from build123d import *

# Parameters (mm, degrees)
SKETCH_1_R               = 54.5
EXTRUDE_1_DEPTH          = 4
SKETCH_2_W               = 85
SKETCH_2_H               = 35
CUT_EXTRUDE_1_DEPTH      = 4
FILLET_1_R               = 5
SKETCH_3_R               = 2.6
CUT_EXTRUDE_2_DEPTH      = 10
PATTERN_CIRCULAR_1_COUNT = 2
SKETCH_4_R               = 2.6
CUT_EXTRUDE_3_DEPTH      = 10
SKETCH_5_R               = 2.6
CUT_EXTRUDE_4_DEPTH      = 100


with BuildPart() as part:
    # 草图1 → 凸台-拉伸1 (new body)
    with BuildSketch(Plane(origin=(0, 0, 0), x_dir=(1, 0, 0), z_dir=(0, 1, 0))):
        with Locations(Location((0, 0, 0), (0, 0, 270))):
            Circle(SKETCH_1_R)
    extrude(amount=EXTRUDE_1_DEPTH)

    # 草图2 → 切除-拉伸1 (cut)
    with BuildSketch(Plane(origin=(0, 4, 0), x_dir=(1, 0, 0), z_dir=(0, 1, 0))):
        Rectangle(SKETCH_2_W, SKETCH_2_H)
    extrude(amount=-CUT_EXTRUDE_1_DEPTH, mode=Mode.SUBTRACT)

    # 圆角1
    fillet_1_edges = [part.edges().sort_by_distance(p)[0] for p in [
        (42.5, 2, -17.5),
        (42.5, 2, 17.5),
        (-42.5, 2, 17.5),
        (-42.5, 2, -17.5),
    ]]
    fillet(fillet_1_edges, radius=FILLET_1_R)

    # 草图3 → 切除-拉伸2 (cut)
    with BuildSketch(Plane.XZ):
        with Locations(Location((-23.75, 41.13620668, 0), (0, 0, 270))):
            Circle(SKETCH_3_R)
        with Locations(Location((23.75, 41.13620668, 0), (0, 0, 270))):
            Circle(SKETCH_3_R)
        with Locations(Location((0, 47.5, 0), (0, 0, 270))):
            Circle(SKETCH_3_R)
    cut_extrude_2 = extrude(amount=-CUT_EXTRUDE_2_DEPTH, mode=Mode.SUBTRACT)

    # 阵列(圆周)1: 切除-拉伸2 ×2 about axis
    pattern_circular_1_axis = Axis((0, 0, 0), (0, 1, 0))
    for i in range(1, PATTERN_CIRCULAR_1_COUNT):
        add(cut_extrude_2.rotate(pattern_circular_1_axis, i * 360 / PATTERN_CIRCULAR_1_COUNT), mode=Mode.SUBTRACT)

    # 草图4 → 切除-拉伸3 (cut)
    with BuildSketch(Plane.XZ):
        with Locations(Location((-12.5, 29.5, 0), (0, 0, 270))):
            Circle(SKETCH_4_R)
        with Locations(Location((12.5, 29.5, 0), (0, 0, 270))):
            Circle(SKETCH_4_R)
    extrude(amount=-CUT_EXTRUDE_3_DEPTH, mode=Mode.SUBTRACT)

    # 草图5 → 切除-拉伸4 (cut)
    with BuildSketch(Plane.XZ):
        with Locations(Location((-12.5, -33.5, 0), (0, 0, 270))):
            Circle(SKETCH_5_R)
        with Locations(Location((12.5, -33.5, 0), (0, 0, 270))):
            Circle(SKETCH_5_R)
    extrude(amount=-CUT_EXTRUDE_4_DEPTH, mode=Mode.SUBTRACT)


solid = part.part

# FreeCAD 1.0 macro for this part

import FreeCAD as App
import Part
import Sketcher

V = App.Vector


def edges_at(feature, points):
    """Names of the edges that pass closest to the given points."""
    edges = feature.Shape.Edges
    near = lambda p: min(range(len(edges)), key=lambda i: edges[i].distToShape(Part.Vertex(*p))[0])
    return sorted({f"Edge{near(p) + 1}" for p in points})

doc = App.newDocument("Part")
body = doc.addObject("PartDesign::Body", "Body")

# Sketch on XZ plane
sketch1 = doc.addObject("Sketcher::SketchObject", "Sketch")
body.addObject(sketch1)
sketch1.AttachmentSupport = (doc.XZ_Plane, [""])
sketch1.MapMode = "FlatFace"
sketch1.addGeometry(Part.Circle(V(0, 0, 0), V(0, 0, 1), 54), False)
sketch1.addConstraint([
    Sketcher.Constraint("Coincident", 0, 3, -1, 1),
    Sketcher.Constraint("Diameter", 0, 109.0),
])
pad1 = doc.addObject("PartDesign::Pad", "Pad")
body.addObject(pad1)
pad1.Profile = sketch1
pad1.Length = 4
pad1.Reversed = True

# Sketch on XZ plane
sketch2 = doc.addObject("Sketcher::SketchObject", "Sketch001")
body.addObject(sketch2)
sketch2.AttachmentSupport = (doc.XZ_Plane, [""])
sketch2.MapMode = "FlatFace"
sketch2.AttachmentOffset = App.Placement(V(0, 0, -4), App.Rotation())
sketch2.addGeometry([
    Part.LineSegment(V(-42, -18, 0), V(-42, 18, 0)),
    Part.LineSegment(V(-42, 18, 0), V(42, 18, 0)),
    Part.LineSegment(V(42, 18, 0), V(42, -18, 0)),
    Part.LineSegment(V(42, -18, 0), V(-42, -18, 0)),
], False)
sketch2.addConstraint([
    Sketcher.Constraint("Coincident", 0, 2, 1, 1),
    Sketcher.Constraint("Coincident", 1, 2, 2, 1),
    Sketcher.Constraint("Coincident", 2, 2, 3, 1),
    Sketcher.Constraint("Coincident", 3, 2, 0, 1),
    Sketcher.Constraint("Vertical", 0),
    Sketcher.Constraint("Horizontal", 1),
    Sketcher.Constraint("Vertical", 2),
    Sketcher.Constraint("Horizontal", 3),
    Sketcher.Constraint("Symmetric", 0, 2, 2, 2, -1, 1),
    Sketcher.Constraint("DistanceX", 1, 1, 1, 2, 85.0),
    Sketcher.Constraint("DistanceY", 0, 1, 0, 2, 35.0),
])
pocket1 = doc.addObject("PartDesign::Pocket", "Pocket")
body.addObject(pocket1)
pocket1.Profile = sketch2
pocket1.Length = 4
pocket1.Reversed = True
doc.recompute()

fillet = doc.addObject("PartDesign::Fillet", "Fillet")
body.addObject(fillet)
fillet.Base = (pocket1, edges_at(pocket1, [
    (42.5, 2, -17.5),
    (42.5, 2, 17.5),
    (-42.5, 2, 17.5),
    (-42.5, 2, -17.5),
]))
fillet.Radius = 5

# Sketch on XZ plane
sketch3 = doc.addObject("Sketcher::SketchObject", "Sketch002")
body.addObject(sketch3)
sketch3.AttachmentSupport = (doc.XZ_Plane, [""])
sketch3.MapMode = "FlatFace"
sketch3.addGeometry([
    Part.Circle(V(-23.8, 41.1, 0), V(0, 0, 1), 2.6),
    Part.Circle(V(23.8, 41.1, 0), V(0, 0, 1), 2.6),
    Part.Circle(V(0, 47.5, 0), V(0, 0, 1), 2.6),
], False)
sketch3.addConstraint([
    Sketcher.Constraint("Equal", 0, 1),
    Sketcher.Constraint("Equal", 1, 2),
    Sketcher.Constraint("Symmetric", 0, 3, 1, 3, -2),
    Sketcher.Constraint("PointOnObject", 2, 3, -2),
    Sketcher.Constraint("Diameter", 0, 5.2),
    Sketcher.Constraint("DistanceY", -1, 1, 2, 3, 47.5),
    Sketcher.Constraint("DistanceX", 0, 3, 1, 3, 47.5),
    Sketcher.Constraint("DistanceY", -1, 1, 0, 3, 41.136207),
])
pocket2 = doc.addObject("PartDesign::Pocket", "Pocket001")
body.addObject(pocket2)
pocket2.Profile = sketch3
pocket2.Length = 10
doc.recompute()

polarpattern = doc.addObject("PartDesign::PolarPattern", "PolarPattern")
body.addObject(polarpattern)
polarpattern.Originals = [pocket2]
polarpattern.Axis = (doc.Y_Axis, [""])
polarpattern.Angle = 360
polarpattern.Occurrences = 2
body.Tip = polarpattern

# Sketch on XZ plane
sketch4 = doc.addObject("Sketcher::SketchObject", "Sketch003")
body.addObject(sketch4)
sketch4.AttachmentSupport = (doc.XZ_Plane, [""])
sketch4.MapMode = "FlatFace"
sketch4.addGeometry([
    Part.Circle(V(-12.5, 29.5, 0), V(0, 0, 1), 2.6),
    Part.Circle(V(12.5, 29.5, 0), V(0, 0, 1), 2.6),
], False)
sketch4.addConstraint([
    Sketcher.Constraint("Equal", 0, 1),
    Sketcher.Constraint("Symmetric", 0, 3, 1, 3, -2),
    Sketcher.Constraint("Diameter", 0, 5.2),
    Sketcher.Constraint("DistanceX", 0, 3, 1, 3, 25.0),
    Sketcher.Constraint("DistanceY", -1, 1, 0, 3, 29.5),
])
pocket3 = doc.addObject("PartDesign::Pocket", "Pocket002")
body.addObject(pocket3)
pocket3.Profile = sketch4
pocket3.Length = 10

# Sketch on XZ plane
sketch5 = doc.addObject("Sketcher::SketchObject", "Sketch004")
body.addObject(sketch5)
sketch5.AttachmentSupport = (doc.XZ_Plane, [""])
sketch5.MapMode = "FlatFace"
sketch5.addGeometry([
    Part.Circle(V(-12.5, -33.5, 0), V(0, 0, 1), 2.6),
    Part.Circle(V(12.5, -33.5, 0), V(0, 0, 1), 2.6),
], False)
sketch5.addConstraint([
    Sketcher.Constraint("Equal", 0, 1),
    Sketcher.Constraint("Symmetric", 0, 3, 1, 3, -2),
    Sketcher.Constraint("Diameter", 0, 5.2),
    Sketcher.Constraint("DistanceX", 0, 3, 1, 3, 25.0),
    Sketcher.Constraint("DistanceY", 0, 3, -1, 1, 33.5),
])
pocket4 = doc.addObject("PartDesign::Pocket", "Pocket003")
body.addObject(pocket4)
pocket4.Profile = sketch5
pocket4.Length = 100

doc.recompute()
